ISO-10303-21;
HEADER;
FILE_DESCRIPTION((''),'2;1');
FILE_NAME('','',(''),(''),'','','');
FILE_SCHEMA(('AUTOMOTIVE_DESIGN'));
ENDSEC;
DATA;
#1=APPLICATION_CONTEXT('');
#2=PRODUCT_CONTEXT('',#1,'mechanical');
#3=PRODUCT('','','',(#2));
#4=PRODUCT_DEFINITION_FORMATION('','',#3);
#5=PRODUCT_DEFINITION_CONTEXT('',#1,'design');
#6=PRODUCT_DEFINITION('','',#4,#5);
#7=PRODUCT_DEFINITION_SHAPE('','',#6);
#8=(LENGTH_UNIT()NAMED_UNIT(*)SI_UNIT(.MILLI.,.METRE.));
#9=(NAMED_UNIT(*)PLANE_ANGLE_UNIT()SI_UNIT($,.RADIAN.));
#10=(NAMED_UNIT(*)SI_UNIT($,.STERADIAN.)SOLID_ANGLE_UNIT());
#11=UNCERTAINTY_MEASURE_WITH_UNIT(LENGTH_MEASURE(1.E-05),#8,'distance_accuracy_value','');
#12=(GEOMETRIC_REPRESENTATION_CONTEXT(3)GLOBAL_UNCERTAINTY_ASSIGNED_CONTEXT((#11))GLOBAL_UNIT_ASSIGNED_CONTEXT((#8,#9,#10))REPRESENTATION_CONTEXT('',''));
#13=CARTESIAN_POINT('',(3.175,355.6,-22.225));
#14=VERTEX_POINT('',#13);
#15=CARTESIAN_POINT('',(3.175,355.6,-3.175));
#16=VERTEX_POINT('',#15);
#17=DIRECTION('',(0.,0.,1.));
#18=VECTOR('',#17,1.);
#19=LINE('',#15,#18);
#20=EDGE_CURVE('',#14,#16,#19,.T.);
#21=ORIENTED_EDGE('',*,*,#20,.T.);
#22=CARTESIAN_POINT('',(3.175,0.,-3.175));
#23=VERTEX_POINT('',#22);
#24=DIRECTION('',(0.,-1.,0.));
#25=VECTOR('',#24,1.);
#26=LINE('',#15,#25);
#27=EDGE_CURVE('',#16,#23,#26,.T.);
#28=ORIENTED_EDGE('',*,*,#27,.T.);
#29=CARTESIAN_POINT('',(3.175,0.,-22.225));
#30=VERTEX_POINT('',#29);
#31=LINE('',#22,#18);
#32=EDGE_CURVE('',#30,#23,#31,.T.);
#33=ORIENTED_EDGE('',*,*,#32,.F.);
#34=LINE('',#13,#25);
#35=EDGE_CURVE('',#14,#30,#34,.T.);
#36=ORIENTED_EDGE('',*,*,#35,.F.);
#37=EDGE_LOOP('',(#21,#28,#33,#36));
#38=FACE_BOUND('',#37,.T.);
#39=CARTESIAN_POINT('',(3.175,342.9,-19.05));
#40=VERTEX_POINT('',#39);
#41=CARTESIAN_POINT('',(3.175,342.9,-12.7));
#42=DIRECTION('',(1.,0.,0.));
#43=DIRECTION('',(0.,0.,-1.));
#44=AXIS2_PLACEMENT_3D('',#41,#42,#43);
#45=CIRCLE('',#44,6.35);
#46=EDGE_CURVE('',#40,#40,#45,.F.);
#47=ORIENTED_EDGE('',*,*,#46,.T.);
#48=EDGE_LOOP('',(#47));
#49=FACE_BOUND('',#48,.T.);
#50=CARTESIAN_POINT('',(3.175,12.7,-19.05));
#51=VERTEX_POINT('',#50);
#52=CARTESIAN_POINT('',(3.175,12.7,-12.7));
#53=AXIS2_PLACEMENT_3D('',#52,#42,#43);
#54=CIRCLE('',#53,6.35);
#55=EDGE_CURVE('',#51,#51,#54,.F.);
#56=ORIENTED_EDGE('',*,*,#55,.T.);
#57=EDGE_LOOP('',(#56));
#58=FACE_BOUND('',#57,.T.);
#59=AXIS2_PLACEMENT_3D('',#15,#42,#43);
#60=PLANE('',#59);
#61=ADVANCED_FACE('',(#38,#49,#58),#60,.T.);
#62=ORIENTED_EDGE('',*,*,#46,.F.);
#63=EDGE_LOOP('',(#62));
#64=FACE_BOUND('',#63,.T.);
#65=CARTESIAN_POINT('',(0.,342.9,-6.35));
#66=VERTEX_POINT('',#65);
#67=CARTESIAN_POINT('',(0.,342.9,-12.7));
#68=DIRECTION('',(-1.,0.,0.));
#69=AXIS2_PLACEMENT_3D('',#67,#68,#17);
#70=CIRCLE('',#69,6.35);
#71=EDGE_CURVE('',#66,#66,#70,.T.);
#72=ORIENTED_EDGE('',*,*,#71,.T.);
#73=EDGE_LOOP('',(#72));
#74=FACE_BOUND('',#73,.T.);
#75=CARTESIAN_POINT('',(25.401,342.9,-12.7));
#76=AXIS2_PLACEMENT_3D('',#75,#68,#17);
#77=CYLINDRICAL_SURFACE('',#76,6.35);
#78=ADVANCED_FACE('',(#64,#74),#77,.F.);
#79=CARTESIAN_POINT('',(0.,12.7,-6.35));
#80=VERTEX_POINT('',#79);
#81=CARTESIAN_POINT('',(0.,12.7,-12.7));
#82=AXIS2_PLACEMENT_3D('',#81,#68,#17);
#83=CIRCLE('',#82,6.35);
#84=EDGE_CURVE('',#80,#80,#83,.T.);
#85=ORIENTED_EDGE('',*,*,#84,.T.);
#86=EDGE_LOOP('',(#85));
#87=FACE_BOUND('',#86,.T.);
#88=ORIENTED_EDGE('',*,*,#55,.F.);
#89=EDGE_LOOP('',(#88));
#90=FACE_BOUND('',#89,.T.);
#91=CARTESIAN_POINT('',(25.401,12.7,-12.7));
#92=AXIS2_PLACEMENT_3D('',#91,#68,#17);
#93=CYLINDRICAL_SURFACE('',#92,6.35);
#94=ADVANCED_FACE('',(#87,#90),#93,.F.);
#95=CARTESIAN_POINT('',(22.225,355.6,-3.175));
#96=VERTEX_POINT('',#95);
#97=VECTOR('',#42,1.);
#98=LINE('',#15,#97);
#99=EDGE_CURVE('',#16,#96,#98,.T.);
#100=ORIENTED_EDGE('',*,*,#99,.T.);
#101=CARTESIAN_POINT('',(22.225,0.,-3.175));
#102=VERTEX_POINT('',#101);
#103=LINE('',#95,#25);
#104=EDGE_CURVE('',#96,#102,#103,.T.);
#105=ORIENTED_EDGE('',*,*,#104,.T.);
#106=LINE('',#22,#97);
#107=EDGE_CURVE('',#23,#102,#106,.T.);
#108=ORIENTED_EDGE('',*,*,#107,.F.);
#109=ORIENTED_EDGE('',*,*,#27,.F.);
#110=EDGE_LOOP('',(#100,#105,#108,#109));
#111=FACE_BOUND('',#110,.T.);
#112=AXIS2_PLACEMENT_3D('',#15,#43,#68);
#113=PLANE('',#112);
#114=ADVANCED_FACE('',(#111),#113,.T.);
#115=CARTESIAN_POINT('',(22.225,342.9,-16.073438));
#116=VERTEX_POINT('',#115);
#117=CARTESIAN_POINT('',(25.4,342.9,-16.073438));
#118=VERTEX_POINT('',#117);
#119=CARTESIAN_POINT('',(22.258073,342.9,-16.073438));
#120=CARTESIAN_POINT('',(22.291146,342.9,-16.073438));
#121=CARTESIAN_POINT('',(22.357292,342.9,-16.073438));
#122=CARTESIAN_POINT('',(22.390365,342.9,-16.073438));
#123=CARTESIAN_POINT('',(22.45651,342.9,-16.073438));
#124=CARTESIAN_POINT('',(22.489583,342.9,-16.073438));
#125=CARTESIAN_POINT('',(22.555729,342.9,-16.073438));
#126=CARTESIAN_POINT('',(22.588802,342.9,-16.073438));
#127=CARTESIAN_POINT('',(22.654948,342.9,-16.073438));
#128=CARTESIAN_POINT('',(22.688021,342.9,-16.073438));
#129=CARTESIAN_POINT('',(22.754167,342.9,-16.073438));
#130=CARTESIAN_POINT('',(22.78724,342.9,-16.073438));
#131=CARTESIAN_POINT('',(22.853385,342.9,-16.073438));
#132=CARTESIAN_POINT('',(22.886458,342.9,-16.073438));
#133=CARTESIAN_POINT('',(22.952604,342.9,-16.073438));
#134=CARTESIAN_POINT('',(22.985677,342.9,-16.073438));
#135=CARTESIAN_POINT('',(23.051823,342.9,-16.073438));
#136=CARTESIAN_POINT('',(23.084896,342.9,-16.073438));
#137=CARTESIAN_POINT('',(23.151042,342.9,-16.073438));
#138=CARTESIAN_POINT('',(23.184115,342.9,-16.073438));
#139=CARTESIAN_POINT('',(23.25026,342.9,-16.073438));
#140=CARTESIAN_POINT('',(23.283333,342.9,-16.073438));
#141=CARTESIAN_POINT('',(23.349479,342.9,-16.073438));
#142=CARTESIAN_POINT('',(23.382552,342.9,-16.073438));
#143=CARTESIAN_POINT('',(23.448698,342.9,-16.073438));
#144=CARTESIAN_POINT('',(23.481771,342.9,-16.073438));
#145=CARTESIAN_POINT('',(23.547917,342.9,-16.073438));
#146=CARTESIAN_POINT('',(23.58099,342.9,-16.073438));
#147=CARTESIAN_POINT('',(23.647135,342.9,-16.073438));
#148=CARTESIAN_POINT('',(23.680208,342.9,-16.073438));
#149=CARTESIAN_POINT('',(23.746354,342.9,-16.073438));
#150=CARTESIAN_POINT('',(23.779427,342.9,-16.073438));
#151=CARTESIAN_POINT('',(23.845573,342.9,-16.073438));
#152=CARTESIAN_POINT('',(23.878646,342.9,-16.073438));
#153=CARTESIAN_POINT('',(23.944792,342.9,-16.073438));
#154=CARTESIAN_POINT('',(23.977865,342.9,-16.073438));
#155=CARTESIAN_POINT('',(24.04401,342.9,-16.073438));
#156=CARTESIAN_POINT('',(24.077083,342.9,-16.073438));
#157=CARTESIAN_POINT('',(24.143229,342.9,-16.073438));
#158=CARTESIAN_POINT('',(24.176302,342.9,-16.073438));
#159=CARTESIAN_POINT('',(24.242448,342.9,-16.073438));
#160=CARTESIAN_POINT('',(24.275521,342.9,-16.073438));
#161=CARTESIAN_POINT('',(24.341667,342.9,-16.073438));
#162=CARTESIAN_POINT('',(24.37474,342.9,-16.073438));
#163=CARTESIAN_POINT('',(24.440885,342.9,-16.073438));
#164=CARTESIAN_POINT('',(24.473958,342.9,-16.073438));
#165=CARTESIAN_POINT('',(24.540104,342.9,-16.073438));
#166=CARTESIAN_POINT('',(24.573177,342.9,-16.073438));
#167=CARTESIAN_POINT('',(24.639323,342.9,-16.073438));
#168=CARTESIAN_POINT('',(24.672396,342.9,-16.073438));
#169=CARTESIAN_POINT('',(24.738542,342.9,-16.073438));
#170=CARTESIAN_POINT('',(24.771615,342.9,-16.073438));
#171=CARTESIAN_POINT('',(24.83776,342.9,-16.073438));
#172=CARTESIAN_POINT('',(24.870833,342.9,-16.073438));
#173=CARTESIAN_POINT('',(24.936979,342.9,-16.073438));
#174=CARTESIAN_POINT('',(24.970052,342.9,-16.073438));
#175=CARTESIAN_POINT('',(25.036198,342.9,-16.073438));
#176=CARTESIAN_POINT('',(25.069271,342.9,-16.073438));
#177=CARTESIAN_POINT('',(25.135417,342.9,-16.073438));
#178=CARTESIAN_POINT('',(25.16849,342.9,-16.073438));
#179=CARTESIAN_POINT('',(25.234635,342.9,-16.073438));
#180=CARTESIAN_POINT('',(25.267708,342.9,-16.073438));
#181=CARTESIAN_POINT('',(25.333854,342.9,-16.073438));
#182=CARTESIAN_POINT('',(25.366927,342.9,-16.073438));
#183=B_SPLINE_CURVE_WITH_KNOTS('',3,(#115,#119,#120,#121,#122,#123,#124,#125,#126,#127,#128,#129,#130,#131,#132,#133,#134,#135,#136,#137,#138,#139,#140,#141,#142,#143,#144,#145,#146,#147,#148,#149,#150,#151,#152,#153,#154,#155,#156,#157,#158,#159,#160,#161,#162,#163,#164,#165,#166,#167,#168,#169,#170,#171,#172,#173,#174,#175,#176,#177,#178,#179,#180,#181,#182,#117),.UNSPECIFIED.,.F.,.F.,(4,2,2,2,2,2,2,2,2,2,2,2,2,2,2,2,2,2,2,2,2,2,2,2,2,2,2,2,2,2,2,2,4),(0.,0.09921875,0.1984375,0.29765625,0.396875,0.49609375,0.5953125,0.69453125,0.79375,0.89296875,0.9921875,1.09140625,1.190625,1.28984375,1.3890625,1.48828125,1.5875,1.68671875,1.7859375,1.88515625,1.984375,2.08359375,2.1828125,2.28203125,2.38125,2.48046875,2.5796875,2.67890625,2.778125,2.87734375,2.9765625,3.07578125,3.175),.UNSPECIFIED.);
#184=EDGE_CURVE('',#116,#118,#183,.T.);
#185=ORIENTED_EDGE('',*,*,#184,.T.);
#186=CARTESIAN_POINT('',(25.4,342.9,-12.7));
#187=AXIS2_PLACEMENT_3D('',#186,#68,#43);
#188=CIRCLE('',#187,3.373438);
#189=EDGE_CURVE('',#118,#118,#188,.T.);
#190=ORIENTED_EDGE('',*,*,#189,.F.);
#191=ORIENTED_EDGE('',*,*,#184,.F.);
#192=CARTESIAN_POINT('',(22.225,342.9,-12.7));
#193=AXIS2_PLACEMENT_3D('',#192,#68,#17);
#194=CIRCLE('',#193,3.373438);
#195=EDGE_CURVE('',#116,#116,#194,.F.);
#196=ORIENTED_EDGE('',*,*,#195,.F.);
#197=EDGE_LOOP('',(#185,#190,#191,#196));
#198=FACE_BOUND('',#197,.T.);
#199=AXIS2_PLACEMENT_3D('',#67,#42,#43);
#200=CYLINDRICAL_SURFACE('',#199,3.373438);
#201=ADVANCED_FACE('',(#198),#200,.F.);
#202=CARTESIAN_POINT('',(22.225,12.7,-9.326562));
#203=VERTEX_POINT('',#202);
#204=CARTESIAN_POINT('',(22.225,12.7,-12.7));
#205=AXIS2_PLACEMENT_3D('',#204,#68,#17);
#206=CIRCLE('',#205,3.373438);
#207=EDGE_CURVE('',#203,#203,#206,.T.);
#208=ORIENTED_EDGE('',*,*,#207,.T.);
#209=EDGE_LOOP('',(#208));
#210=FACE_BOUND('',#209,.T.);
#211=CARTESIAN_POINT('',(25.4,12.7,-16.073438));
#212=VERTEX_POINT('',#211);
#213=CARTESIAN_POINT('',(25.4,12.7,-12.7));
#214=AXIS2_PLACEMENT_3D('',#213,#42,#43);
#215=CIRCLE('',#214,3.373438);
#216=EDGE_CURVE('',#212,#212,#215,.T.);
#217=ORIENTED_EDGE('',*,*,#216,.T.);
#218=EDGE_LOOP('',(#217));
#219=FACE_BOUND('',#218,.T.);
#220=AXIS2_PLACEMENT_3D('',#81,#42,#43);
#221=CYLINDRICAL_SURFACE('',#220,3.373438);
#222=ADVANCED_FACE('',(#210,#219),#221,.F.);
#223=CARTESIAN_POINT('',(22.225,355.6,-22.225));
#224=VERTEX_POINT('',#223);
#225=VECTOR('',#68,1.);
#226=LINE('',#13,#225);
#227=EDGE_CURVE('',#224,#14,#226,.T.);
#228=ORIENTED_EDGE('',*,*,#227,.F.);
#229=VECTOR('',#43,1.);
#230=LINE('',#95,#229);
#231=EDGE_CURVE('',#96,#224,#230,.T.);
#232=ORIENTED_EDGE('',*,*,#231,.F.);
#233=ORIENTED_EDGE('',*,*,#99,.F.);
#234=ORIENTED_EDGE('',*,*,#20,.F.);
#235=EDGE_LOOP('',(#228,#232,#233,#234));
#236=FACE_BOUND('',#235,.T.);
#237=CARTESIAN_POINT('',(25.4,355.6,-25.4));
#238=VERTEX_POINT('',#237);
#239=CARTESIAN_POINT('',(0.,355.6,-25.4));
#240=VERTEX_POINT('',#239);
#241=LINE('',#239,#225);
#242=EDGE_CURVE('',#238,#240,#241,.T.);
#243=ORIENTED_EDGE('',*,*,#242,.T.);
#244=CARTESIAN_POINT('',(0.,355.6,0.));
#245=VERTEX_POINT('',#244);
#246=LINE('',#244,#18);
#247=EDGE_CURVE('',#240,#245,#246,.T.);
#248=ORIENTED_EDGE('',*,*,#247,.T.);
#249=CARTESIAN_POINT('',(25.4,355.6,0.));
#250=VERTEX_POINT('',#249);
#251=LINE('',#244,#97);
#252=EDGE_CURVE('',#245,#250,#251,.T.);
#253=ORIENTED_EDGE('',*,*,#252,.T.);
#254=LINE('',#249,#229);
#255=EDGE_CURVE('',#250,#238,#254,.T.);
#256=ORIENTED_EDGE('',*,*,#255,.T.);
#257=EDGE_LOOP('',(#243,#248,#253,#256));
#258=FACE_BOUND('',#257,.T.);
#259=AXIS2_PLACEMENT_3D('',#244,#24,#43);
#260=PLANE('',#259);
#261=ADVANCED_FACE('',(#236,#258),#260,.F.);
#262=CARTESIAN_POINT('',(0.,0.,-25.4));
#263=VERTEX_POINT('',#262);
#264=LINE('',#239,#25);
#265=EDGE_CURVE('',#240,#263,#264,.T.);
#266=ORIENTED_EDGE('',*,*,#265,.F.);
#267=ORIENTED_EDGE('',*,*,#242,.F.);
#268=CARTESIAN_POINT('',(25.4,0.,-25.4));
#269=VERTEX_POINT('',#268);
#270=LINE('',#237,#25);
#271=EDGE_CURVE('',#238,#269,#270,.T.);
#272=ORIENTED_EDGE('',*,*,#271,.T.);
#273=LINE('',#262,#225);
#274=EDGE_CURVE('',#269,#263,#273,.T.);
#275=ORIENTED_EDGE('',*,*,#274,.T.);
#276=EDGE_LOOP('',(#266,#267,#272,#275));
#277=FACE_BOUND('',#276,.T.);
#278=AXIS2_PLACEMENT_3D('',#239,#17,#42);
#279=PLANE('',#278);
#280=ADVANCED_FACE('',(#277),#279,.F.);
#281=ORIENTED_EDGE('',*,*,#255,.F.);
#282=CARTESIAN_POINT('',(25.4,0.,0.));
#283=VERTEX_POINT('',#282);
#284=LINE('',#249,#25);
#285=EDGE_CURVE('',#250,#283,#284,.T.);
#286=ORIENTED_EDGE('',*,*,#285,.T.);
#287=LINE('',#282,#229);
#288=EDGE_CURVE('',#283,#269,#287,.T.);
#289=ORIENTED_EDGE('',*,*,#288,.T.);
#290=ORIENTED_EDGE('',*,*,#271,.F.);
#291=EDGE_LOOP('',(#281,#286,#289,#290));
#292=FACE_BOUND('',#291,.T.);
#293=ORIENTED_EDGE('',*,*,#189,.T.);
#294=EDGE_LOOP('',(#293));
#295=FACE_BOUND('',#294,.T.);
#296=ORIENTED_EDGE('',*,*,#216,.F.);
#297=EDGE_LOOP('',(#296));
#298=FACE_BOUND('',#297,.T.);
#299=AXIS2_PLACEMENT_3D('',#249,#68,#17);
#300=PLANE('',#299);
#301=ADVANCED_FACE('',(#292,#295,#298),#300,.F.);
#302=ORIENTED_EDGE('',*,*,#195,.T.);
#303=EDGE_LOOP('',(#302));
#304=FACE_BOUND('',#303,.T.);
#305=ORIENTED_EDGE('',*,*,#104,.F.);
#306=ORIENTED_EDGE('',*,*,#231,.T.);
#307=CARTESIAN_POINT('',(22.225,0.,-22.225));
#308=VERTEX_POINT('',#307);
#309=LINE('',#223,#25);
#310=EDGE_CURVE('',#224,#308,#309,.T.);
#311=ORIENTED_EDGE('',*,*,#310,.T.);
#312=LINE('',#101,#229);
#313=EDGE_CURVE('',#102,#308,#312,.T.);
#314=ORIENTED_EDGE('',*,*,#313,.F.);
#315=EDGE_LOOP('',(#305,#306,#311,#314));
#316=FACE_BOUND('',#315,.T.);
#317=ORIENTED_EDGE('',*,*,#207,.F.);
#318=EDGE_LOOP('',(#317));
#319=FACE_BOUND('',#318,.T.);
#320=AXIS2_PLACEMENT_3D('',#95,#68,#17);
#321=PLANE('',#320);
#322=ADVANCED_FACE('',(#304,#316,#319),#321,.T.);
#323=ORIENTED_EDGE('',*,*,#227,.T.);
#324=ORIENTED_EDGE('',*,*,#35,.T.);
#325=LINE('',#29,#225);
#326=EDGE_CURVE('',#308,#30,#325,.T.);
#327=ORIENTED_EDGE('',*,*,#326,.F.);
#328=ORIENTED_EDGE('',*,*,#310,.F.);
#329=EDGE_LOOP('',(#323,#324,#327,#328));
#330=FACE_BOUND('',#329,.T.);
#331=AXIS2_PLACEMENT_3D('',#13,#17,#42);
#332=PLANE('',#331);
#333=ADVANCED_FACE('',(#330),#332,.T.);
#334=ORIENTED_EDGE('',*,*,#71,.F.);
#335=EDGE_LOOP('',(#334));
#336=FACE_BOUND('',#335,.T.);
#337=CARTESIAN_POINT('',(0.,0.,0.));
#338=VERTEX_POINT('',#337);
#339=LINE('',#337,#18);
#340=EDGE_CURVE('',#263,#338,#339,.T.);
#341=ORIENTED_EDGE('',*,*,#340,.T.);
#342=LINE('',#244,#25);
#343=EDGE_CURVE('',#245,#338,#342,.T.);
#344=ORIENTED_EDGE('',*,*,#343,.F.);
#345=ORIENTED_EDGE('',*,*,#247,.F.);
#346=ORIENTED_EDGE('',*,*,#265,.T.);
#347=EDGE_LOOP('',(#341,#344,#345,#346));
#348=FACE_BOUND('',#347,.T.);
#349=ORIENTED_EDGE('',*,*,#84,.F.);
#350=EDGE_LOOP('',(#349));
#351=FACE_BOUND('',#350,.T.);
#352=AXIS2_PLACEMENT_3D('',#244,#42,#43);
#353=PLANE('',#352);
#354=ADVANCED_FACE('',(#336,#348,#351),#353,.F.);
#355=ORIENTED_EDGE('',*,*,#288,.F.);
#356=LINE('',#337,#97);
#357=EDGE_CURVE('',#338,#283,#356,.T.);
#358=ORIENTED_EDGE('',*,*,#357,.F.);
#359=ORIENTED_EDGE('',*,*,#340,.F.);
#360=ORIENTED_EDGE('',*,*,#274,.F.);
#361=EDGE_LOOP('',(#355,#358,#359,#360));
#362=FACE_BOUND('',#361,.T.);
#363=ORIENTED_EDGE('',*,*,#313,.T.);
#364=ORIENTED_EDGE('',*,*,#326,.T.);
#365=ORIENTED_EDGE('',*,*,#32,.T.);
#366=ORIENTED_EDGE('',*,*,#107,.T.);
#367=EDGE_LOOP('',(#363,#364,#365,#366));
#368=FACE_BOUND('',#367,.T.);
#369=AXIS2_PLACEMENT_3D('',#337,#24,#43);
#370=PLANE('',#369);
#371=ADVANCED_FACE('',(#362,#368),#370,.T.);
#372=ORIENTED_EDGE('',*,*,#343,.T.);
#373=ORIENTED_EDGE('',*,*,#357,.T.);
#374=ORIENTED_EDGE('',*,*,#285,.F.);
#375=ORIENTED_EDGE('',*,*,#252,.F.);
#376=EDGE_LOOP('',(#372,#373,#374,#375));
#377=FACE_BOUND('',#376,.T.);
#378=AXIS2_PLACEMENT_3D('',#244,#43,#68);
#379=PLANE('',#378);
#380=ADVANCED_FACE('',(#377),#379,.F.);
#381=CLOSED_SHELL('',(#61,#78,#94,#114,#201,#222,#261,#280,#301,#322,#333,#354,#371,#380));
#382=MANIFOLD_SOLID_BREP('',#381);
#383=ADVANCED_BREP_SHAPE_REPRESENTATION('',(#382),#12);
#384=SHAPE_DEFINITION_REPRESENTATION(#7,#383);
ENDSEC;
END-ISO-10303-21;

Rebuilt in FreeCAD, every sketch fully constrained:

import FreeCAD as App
import Part
import Sketcher

V = App.Vector
Q = App.Units.Quantity

doc = App.newDocument("Part")
params = doc.addObject("Spreadsheet::Sheet", "Params")
for row, (alias, value) in enumerate([
    ("sketch1_width", "1 in"),
    ("sketch1_width2", "0.75 in"),
    ("pad1_length", "14 in"),
    ("sketch2_diameter", "0.265625 in"),
    ("sketch3_diameter", "0.5 in"),
    ("pocket2_length", "0.125 in"),
    ("sketch4_diameter", "0.5 in"),
    ("pocket3_length", "0.125 in"),
], start=1):
    params.set(f"A{row}", alias)
    params.set(f"B{row}", "=" + value)
    params.setAlias(f"B{row}", alias)

body = doc.addObject("PartDesign::Body", "Body")

# Sketch on XZ plane
sketch1 = body.newObject("Sketcher::SketchObject", "Sketch")
sketch1.AttachmentSupport = (doc.getObject("XZ_Plane"), [""])
sketch1.MapMode = "FlatFace"
sketch1.addGeometry(Part.LineSegment(V(0, -25.4, 0), V(0, 0, 0)), False)
sketch1.addGeometry(Part.LineSegment(V(0, 0, 0), V(25.4, 0, 0)), False)
sketch1.addGeometry(Part.LineSegment(V(25.4, 0, 0), V(25.4, -25.4, 0)), False)
sketch1.addGeometry(Part.LineSegment(V(25.4, -25.4, 0), V(0, -25.4, 0)), False)
sketch1.addGeometry(Part.LineSegment(V(22.225, -3.175, 0), V(3.175, -3.175, 0)), False)
sketch1.addGeometry(Part.LineSegment(V(3.175, -3.175, 0), V(3.175, -22.225, 0)), False)
sketch1.addGeometry(Part.LineSegment(V(3.175, -22.225, 0), V(22.225, -22.225, 0)), False)
sketch1.addGeometry(Part.LineSegment(V(22.225, -22.225, 0), V(22.225, -3.175, 0)), False)
sketch1.addConstraint(Sketcher.Constraint("Coincident", 0, 2, 1, 1))
sketch1.addConstraint(Sketcher.Constraint("Coincident", 1, 2, 2, 1))
sketch1.addConstraint(Sketcher.Constraint("Coincident", 2, 2, 3, 1))
sketch1.addConstraint(Sketcher.Constraint("Coincident", 3, 2, 0, 1))
sketch1.addConstraint(Sketcher.Constraint("Coincident", 4, 2, 5, 1))
sketch1.addConstraint(Sketcher.Constraint("Coincident", 5, 2, 6, 1))
sketch1.addConstraint(Sketcher.Constraint("Coincident", 6, 2, 7, 1))
sketch1.addConstraint(Sketcher.Constraint("Coincident", 7, 2, 4, 1))
sketch1.addConstraint(Sketcher.Constraint("Vertical", 0))
sketch1.addConstraint(Sketcher.Constraint("Horizontal", 1))
sketch1.addConstraint(Sketcher.Constraint("Vertical", 2))
sketch1.addConstraint(Sketcher.Constraint("Horizontal", 3))
sketch1.addConstraint(Sketcher.Constraint("Horizontal", 4))
sketch1.addConstraint(Sketcher.Constraint("Vertical", 5))
sketch1.addConstraint(Sketcher.Constraint("Horizontal", 6))
sketch1.addConstraint(Sketcher.Constraint("Vertical", 7))
sketch1.addConstraint(Sketcher.Constraint("Coincident", 0, 2, -1, 1))
sketch1.addConstraint(Sketcher.Constraint("Equal", 3, 0))
sketch1.addConstraint(Sketcher.Constraint("Equal", 6, 5))
sketch1.addConstraint(Sketcher.Constraint("DistanceX", 1, 1, 1, 2, Q("1 in")))
sketch1.addConstraint(Sketcher.Constraint("DistanceX", 4, 2, 4, 1, Q("0.75 in")))
sketch1.addConstraint(Sketcher.Constraint("DistanceX", -1, 1, 4, 2, Q("0.125 in")))
sketch1.addConstraint(Sketcher.Constraint("DistanceY", 4, 2, -1, 1, Q("0.125 in")))
sketch1.setExpression("Constraints[19]", "Params.sketch1_width")
sketch1.setExpression("Constraints[20]", "Params.sketch1_width2")
pad1 = body.newObject("PartDesign::Pad", "Pad")
pad1.Profile = sketch1
pad1.setExpression("Length", "Params.pad1_length")
pad1.Reversed = True

# Sketch on YZ plane
sketch2 = body.newObject("Sketcher::SketchObject", "Sketch001")
sketch2.AttachmentSupport = (doc.getObject("YZ_Plane"), [""])
sketch2.MapMode = "FlatFace"
sketch2.AttachmentOffset = App.Placement(V(0, 0, 1 * 25.4), App.Rotation())
sketch2.addGeometry(Part.Circle(V(12.7, -12.7, 0), V(0, 0, 1), 3.373438), False)
sketch2.addConstraint(Sketcher.Constraint("Diameter", 0, Q("0.265625 in")))
sketch2.addConstraint(Sketcher.Constraint("DistanceX", -1, 1, 0, 3, Q("0.5 in")))
sketch2.addConstraint(Sketcher.Constraint("DistanceY", 0, 3, -1, 1, Q("0.5 in")))
sketch2.setExpression("Constraints[0]", "Params.sketch2_diameter")
pocket1 = body.newObject("PartDesign::Pocket", "Pocket")
pocket1.Profile = sketch2
pocket1.Type = "ThroughAll"
doc.recompute()

datumplane = body.newObject("PartDesign::Plane", "DatumPlane")
datumplane.AttachmentSupport = (doc.getObject("XZ_Plane"), [""])
datumplane.MapMode = "FlatFace"
datumplane.AttachmentOffset = App.Placement(V(0, 0, -7 * 25.4), App.Rotation())
mirrored = body.newObject("PartDesign::Mirrored", "Mirrored")
mirrored.Originals = [pocket1]
mirrored.MirrorPlane = (datumplane, [""])
body.Tip = mirrored

# Sketch on YZ plane
sketch3 = body.newObject("Sketcher::SketchObject", "Sketch002")
sketch3.AttachmentSupport = (doc.getObject("YZ_Plane"), [""])
sketch3.MapMode = "FlatFace"
sketch3.addGeometry(Part.Circle(V(342.9, -12.7, 0), V(0, 0, 1), 6.35), False)
sketch3.addConstraint(Sketcher.Constraint("Diameter", 0, Q("0.5 in")))
sketch3.addConstraint(Sketcher.Constraint("DistanceX", -1, 1, 0, 3, Q("13.5 in")))
sketch3.addConstraint(Sketcher.Constraint("DistanceY", 0, 3, -1, 1, Q("0.5 in")))
sketch3.setExpression("Constraints[0]", "Params.sketch3_diameter")
pocket2 = body.newObject("PartDesign::Pocket", "Pocket001")
pocket2.Profile = sketch3
pocket2.setExpression("Length", "Params.pocket2_length")
pocket2.Reversed = True

# Sketch on YZ plane
sketch4 = body.newObject("Sketcher::SketchObject", "Sketch003")
sketch4.AttachmentSupport = (doc.getObject("YZ_Plane"), [""])
sketch4.MapMode = "FlatFace"
sketch4.addGeometry(Part.Circle(V(12.7, -12.7, 0), V(0, 0, 1), 6.35), False)
sketch4.addConstraint(Sketcher.Constraint("Diameter", 0, Q("0.5 in")))
sketch4.addConstraint(Sketcher.Constraint("DistanceX", -1, 1, 0, 3, Q("0.5 in")))
sketch4.addConstraint(Sketcher.Constraint("DistanceY", 0, 3, -1, 1, Q("0.5 in")))
sketch4.setExpression("Constraints[0]", "Params.sketch4_diameter")
pocket3 = body.newObject("PartDesign::Pocket", "Pocket002")
pocket3.Profile = sketch4
pocket3.setExpression("Length", "Params.pocket3_length")
pocket3.Reversed = True

doc.recompute()
